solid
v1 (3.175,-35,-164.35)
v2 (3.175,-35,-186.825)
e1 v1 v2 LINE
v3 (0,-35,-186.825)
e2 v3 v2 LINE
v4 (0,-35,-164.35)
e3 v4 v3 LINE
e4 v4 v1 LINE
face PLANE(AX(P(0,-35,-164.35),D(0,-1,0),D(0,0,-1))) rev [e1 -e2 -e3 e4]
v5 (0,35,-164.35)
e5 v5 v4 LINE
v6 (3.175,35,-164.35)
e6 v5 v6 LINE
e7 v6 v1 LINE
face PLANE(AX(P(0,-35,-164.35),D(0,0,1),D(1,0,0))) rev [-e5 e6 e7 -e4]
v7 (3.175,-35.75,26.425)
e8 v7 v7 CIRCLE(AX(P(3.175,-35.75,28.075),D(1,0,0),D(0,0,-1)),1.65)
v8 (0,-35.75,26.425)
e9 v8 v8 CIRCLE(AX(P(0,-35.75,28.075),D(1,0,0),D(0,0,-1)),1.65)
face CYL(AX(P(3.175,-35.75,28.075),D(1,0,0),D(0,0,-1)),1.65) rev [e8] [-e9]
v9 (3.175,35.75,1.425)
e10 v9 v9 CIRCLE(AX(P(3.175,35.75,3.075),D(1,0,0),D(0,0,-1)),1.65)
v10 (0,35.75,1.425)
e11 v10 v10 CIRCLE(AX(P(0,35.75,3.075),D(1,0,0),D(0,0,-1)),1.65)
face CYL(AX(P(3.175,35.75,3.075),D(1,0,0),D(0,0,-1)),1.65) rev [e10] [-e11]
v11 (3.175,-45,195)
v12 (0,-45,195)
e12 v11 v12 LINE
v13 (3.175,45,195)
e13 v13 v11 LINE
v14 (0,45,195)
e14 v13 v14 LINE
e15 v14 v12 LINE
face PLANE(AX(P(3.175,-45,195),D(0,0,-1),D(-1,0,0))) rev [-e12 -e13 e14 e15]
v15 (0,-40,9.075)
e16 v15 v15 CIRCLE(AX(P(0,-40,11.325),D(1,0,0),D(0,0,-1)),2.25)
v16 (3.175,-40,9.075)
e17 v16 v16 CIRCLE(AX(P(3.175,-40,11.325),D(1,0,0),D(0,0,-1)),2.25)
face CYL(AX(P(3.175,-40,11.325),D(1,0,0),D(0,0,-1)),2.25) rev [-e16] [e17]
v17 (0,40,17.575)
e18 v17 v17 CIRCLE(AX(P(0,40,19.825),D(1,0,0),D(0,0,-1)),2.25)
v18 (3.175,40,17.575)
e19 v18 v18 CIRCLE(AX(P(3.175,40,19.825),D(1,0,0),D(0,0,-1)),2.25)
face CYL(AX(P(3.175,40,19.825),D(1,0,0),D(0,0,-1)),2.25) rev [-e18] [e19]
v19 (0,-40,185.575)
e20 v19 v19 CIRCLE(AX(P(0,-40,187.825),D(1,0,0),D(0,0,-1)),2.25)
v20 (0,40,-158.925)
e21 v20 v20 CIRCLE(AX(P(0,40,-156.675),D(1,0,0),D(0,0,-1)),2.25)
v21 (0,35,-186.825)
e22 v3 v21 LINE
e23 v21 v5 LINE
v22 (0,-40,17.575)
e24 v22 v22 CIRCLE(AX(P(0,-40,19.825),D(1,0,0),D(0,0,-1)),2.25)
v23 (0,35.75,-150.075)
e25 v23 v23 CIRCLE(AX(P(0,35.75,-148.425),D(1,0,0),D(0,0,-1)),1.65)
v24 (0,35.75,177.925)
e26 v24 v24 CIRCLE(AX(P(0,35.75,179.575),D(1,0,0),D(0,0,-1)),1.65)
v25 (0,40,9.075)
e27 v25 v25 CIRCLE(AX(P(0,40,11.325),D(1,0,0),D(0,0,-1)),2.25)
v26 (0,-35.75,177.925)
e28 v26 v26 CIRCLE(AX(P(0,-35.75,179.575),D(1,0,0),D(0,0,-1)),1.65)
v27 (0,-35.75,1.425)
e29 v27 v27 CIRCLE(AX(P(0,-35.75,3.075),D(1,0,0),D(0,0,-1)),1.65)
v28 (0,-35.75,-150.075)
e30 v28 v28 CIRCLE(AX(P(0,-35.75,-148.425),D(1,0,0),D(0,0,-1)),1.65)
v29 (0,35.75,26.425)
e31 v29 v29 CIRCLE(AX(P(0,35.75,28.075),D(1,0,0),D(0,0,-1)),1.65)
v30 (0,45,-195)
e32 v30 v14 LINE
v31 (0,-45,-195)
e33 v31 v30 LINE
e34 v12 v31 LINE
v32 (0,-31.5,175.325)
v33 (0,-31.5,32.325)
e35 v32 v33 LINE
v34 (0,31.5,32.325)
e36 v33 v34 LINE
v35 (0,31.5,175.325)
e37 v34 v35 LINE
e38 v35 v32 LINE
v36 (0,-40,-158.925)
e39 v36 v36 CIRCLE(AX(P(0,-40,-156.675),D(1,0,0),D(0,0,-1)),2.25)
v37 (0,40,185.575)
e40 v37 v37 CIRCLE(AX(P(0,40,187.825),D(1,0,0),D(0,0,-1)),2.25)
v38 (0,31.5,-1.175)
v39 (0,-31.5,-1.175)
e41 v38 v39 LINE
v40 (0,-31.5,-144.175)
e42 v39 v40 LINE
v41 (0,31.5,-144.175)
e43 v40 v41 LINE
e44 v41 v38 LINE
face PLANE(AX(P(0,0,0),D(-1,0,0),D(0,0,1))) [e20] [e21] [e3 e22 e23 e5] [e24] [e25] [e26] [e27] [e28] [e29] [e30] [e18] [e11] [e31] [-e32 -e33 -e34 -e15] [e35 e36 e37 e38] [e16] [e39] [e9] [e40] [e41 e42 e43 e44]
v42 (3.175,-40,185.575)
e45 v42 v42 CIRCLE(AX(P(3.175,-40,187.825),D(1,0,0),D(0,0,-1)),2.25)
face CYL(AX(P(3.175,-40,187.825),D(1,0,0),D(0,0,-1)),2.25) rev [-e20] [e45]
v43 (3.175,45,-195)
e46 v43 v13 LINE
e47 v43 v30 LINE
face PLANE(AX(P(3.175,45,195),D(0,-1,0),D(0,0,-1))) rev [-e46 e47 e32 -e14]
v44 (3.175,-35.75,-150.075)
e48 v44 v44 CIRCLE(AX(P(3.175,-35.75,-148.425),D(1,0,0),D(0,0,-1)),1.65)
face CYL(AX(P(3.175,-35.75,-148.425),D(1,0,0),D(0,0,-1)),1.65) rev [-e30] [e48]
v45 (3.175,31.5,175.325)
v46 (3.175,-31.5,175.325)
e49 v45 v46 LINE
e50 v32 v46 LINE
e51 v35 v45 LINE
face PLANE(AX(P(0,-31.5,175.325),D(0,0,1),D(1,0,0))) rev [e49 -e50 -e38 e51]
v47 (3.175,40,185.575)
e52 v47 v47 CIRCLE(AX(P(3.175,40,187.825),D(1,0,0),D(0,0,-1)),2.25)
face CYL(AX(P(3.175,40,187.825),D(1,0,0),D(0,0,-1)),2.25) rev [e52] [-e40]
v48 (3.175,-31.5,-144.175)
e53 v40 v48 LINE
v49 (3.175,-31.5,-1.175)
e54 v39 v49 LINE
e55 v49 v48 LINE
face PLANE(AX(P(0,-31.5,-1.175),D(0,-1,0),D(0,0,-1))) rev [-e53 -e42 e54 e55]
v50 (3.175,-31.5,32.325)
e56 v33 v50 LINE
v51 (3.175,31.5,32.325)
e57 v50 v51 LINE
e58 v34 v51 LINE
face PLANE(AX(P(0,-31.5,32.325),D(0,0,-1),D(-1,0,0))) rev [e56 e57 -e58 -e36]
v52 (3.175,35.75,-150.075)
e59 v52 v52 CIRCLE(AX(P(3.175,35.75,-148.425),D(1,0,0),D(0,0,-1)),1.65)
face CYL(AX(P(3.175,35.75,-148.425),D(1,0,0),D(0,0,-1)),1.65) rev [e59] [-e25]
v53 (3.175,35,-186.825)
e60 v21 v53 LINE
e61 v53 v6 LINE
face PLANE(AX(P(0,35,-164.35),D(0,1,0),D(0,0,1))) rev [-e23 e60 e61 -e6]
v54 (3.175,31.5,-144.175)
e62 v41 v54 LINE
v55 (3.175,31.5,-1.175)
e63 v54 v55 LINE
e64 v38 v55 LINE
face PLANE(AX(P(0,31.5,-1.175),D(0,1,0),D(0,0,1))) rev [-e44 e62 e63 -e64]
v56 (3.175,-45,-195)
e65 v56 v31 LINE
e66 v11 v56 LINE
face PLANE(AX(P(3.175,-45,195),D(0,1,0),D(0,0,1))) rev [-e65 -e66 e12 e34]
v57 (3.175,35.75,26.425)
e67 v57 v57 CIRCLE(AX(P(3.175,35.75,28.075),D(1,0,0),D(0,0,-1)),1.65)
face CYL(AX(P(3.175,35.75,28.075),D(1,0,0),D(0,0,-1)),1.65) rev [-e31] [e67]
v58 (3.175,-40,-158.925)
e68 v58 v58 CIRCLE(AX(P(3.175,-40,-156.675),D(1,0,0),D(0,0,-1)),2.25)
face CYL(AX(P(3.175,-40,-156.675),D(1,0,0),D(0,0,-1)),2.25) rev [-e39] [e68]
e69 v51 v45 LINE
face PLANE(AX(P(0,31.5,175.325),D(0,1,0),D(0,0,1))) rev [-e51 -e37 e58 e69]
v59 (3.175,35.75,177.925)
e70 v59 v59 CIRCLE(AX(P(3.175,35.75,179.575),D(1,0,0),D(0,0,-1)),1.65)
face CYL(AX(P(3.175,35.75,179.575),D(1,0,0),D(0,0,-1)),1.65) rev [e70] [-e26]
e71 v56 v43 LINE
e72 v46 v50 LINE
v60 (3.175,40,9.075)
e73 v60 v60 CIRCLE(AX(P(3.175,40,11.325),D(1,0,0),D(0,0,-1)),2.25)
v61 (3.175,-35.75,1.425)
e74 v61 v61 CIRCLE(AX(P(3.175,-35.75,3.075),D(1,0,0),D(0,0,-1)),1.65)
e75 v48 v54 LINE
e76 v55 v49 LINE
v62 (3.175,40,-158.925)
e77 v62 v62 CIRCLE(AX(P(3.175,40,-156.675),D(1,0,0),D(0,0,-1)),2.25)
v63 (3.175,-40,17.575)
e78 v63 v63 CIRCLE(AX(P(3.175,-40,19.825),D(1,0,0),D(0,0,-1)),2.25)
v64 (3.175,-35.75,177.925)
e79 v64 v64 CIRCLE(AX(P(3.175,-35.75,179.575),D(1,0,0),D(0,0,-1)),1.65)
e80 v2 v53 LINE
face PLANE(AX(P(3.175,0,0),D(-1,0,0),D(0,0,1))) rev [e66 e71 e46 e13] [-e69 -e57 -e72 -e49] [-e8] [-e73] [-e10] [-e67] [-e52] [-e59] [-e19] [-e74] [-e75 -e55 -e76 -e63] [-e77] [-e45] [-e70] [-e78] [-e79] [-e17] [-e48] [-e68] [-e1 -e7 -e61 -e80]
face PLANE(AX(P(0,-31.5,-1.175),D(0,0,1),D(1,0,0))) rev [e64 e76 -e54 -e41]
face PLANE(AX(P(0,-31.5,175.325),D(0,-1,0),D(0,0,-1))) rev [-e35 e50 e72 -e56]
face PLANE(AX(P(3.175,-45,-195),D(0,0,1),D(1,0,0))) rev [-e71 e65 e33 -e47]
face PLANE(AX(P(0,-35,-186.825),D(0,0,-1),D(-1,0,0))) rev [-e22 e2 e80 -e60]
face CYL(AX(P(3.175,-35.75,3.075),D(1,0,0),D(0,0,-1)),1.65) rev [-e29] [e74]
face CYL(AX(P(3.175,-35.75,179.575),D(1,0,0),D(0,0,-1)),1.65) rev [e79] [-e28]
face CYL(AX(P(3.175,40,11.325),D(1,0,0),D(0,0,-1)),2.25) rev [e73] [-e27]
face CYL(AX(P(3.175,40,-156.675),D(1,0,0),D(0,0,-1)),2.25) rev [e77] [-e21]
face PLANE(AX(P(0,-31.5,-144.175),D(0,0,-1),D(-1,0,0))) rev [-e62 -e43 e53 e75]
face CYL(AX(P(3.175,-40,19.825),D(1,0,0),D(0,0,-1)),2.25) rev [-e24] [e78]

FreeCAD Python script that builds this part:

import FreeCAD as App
import Part
import Sketcher

V = App.Vector


def add_polygon(sketch, points):
    """Adds a closed chain of lines whose ends are joined by coincident constraints."""
    first, n = sketch.GeometryCount, len(points)
    for a, b in zip(points, points[1:] + points[:1]):
        sketch.addGeometry(Part.LineSegment(App.Vector(*a, 0), App.Vector(*b, 0)), False)
    for i in range(n):
        sketch.addConstraint(Sketcher.Constraint("Coincident", first + i, 2, first + (i + 1) % n, 1))

doc = App.newDocument("Part")
body = doc.addObject("PartDesign::Body", "Body")

# Sketch on YZ plane
sketch1 = body.newObject("Sketcher::SketchObject", "Sketch")
sketch1.AttachmentSupport = (doc.getObject("YZ_Plane"), [""])
sketch1.MapMode = "FlatFace"
add_polygon(sketch1, [(45, 195), (-45, 195), (-45, -195), (45, -195)])  # lines 0-3
sketch1.addConstraint(Sketcher.Constraint("Horizontal", 0))
sketch1.addConstraint(Sketcher.Constraint("Vertical", 1))
sketch1.addConstraint(Sketcher.Constraint("Horizontal", 2))
sketch1.addConstraint(Sketcher.Constraint("Vertical", 3))
sketch1.addConstraint(Sketcher.Constraint("Symmetric", 0, 2, 2, 2, -1, 1))
sketch1.addConstraint(Sketcher.Constraint("DistanceX", 0, 2, 0, 1, 90.0))
sketch1.addConstraint(Sketcher.Constraint("DistanceY", 1, 2, 1, 1, 390.0))
pad1 = body.newObject("PartDesign::Pad", "Pad")
pad1.Profile = sketch1
pad1.Length = 3.175

# Sketch on YZ plane
sketch2 = body.newObject("Sketcher::SketchObject", "Sketch001")
sketch2.AttachmentSupport = (doc.getObject("YZ_Plane"), [""])
sketch2.MapMode = "FlatFace"
sketch2.AttachmentOffset = App.Placement(V(0, 0, 3.175), App.Rotation())
add_polygon(sketch2, [(31.5, -1.175), (-31.5, -1.175), (-31.5, -144.175), (31.5, -144.175)])  # lines 0-3
add_polygon(sketch2, [(31.5, 175.325), (-31.5, 175.325), (-31.5, 32.325), (31.5, 32.325)])  # lines 4-7
sketch2.addConstraint(Sketcher.Constraint("Horizontal", 0))
sketch2.addConstraint(Sketcher.Constraint("Vertical", 1))
sketch2.addConstraint(Sketcher.Constraint("Horizontal", 2))
sketch2.addConstraint(Sketcher.Constraint("Vertical", 3))
sketch2.addConstraint(Sketcher.Constraint("Horizontal", 4))
sketch2.addConstraint(Sketcher.Constraint("Vertical", 5))
sketch2.addConstraint(Sketcher.Constraint("Horizontal", 6))
sketch2.addConstraint(Sketcher.Constraint("Vertical", 7))
sketch2.addConstraint(Sketcher.Constraint("Vertical", 1, 2, 4, 2))
sketch2.addConstraint(Sketcher.Constraint("Vertical", 3, 2, 6, 2))
sketch2.addConstraint(Sketcher.Constraint("Equal", 3, 5))
sketch2.addConstraint(Sketcher.Constraint("DistanceX", 0, 2, 0, 1, 63.0))
sketch2.addConstraint(Sketcher.Constraint("DistanceY", 1, 2, 1, 1, 143.0))
sketch2.addConstraint(Sketcher.Constraint("DistanceX", 0, 2, -1, 1, 31.5))
sketch2.addConstraint(Sketcher.Constraint("DistanceY", 0, 2, 4, 2, 176.5))
sketch2.addConstraint(Sketcher.Constraint("DistanceY", 0, 2, -1, 1, 1.175))
pocket1 = body.newObject("PartDesign::Pocket", "Pocket")
pocket1.Profile = sketch2
pocket1.Length = 3.175

# Sketch on YZ plane
sketch3 = body.newObject("Sketcher::SketchObject", "Sketch002")
sketch3.AttachmentSupport = (doc.getObject("YZ_Plane"), [""])
sketch3.MapMode = "FlatFace"
sketch3.AttachmentOffset = App.Placement(V(0, 0, 3.175), App.Rotation())
sketch3.addGeometry(Part.Circle(V(0, 103.825, 0), V(0, 0, 1), 1.65), False)
sketch3.addGeometry(Part.Circle(V(35.75, 28.075, 0), V(0, 0, 1), 1.65), False)
sketch3.addGeometry(Part.Circle(V(-35.75, 179.575, 0), V(0, 0, 1), 1.65), False)
sketch3.addGeometry(Part.Circle(V(35.75, 179.575, 0), V(0, 0, 1), 1.65), False)
sketch3.addGeometry(Part.Circle(V(-35.75, 28.075, 0), V(0, 0, 1), 1.65), False)
sketch3.addGeometry(Part.Circle(V(0, -72.675, 0), V(0, 0, 1), 1.65), False)
sketch3.addGeometry(Part.Circle(V(35.75, -148.425, 0), V(0, 0, 1), 1.65), False)
sketch3.addGeometry(Part.Circle(V(-35.75, 3.075, 0), V(0, 0, 1), 1.65), False)
sketch3.addGeometry(Part.Circle(V(35.75, 3.075, 0), V(0, 0, 1), 1.65), False)
sketch3.addGeometry(Part.Circle(V(-35.75, -148.425, 0), V(0, 0, 1), 1.65), False)
sketch3.addConstraint(Sketcher.Constraint("Equal", 0, 1))
sketch3.addConstraint(Sketcher.Constraint("Equal", 1, 2))
sketch3.addConstraint(Sketcher.Constraint("Equal", 2, 3))
sketch3.addConstraint(Sketcher.Constraint("Equal", 3, 4))
sketch3.addConstraint(Sketcher.Constraint("Equal", 4, 5))
sketch3.addConstraint(Sketcher.Constraint("Equal", 5, 6))
sketch3.addConstraint(Sketcher.Constraint("Equal", 6, 7))
sketch3.addConstraint(Sketcher.Constraint("Equal", 7, 8))
sketch3.addConstraint(Sketcher.Constraint("Equal", 8, 9))
sketch3.addConstraint(Sketcher.Constraint("Symmetric", 2, 3, 3, 3, -2))
sketch3.addConstraint(Sketcher.Constraint("Symmetric", 1, 3, 4, 3, -2))
sketch3.addConstraint(Sketcher.Constraint("Symmetric", 7, 3, 8, 3, -2))
sketch3.addConstraint(Sketcher.Constraint("Symmetric", 6, 3, 9, 3, -2))
sketch3.addConstraint(Sketcher.Constraint("PointOnObject", 0, 3, -2))
sketch3.addConstraint(Sketcher.Constraint("PointOnObject", 5, 3, -2))
sketch3.addConstraint(Sketcher.Constraint("Vertical", 1, 3, 3, 3))
sketch3.addConstraint(Sketcher.Constraint("Vertical", 3, 3, 6, 3))
sketch3.addConstraint(Sketcher.Constraint("Vertical", 4, 3, 7, 3))
sketch3.addConstraint(Sketcher.Constraint("Diameter", 0, 3.3))
sketch3.addConstraint(Sketcher.Constraint("DistanceY", 6, 3, 3, 3, 328.0))
sketch3.addConstraint(Sketcher.Constraint("DistanceY", 7, 3, 4, 3, 25.0))
sketch3.addConstraint(Sketcher.Constraint("DistanceX", 2, 3, 1, 3, 71.5))
sketch3.addConstraint(Sketcher.Constraint("DistanceY", 1, 3, 2, 3, 151.5))
sketch3.addConstraint(Sketcher.Constraint("DistanceY", 5, 3, 0, 3, 176.5))
sketch3.addConstraint(Sketcher.Constraint("DistanceY", 1, 3, 0, 3, 75.75))
sketch3.addConstraint(Sketcher.Constraint("DistanceY", -1, 1, 0, 3, 103.825))
doc.recompute()
hole = body.newObject("PartDesign::Hole", "Hole")
hole.Profile = sketch3
hole.ThreadType = "None"
hole.Diameter = 3.3
hole.DepthType = "ThroughAll"

# Sketch on YZ plane
sketch4 = body.newObject("Sketcher::SketchObject", "Sketch003")
sketch4.AttachmentSupport = (doc.getObject("YZ_Plane"), [""])
sketch4.MapMode = "FlatFace"
sketch4.AttachmentOffset = App.Placement(V(0, 0, 3.175), App.Rotation())
add_polygon(sketch4, [(35, -164.35), (-35, -164.35), (-35, -186.825), (35, -186.825)])  # lines 0-3
sketch4.addConstraint(Sketcher.Constraint("Horizontal", 0))
sketch4.addConstraint(Sketcher.Constraint("Vertical", 1))
sketch4.addConstraint(Sketcher.Constraint("Horizontal", 2))
sketch4.addConstraint(Sketcher.Constraint("Vertical", 3))
sketch4.addConstraint(Sketcher.Constraint("DistanceX", 0, 2, 0, 1, 70.0))
sketch4.addConstraint(Sketcher.Constraint("DistanceX", 0, 2, -1, 1, 35.0))
sketch4.addConstraint(Sketcher.Constraint("DistanceY", 1, 2, 1, 1, 22.475))
sketch4.addConstraint(Sketcher.Constraint("DistanceY", 0, 2, -1, 1, 164.35))
pocket2 = body.newObject("PartDesign::Pocket", "Pocket001")
pocket2.Profile = sketch4
pocket2.Length = 3.175

# Sketch on YZ plane
sketch5 = body.newObject("Sketcher::SketchObject", "Sketch004")
sketch5.AttachmentSupport = (doc.getObject("YZ_Plane"), [""])
sketch5.MapMode = "FlatFace"
sketch5.AttachmentOffset = App.Placement(V(0, 0, 3.175), App.Rotation())
sketch5.addGeometry(Part.Circle(V(0, 103.825, 0), V(0, 0, 1), 2.25), False)
sketch5.addGeometry(Part.Circle(V(40, 19.825, 0), V(0, 0, 1), 2.25), False)
sketch5.addGeometry(Part.Circle(V(-40, 187.825, 0), V(0, 0, 1), 2.25), False)
sketch5.addGeometry(Part.Circle(V(40, 187.825, 0), V(0, 0, 1), 2.25), False)
sketch5.addGeometry(Part.Circle(V(-40, 19.825, 0), V(0, 0, 1), 2.25), False)
sketch5.addGeometry(Part.Circle(V(0, -72.675, 0), V(0, 0, 1), 2.25), False)
sketch5.addGeometry(Part.Circle(V(40, -156.675, 0), V(0, 0, 1), 2.25), False)
sketch5.addGeometry(Part.Circle(V(-40, 11.325, 0), V(0, 0, 1), 2.25), False)
sketch5.addGeometry(Part.Circle(V(40, 11.325, 0), V(0, 0, 1), 2.25), False)
sketch5.addGeometry(Part.Circle(V(-40, -156.675, 0), V(0, 0, 1), 2.25), False)
sketch5.addConstraint(Sketcher.Constraint("Equal", 0, 1))
sketch5.addConstraint(Sketcher.Constraint("Equal", 1, 2))
sketch5.addConstraint(Sketcher.Constraint("Equal", 2, 3))
sketch5.addConstraint(Sketcher.Constraint("Equal", 3, 4))
sketch5.addConstraint(Sketcher.Constraint("Equal", 4, 5))
sketch5.addConstraint(Sketcher.Constraint("Equal", 5, 6))
sketch5.addConstraint(Sketcher.Constraint("Equal", 6, 7))
sketch5.addConstraint(Sketcher.Constraint("Equal", 7, 8))
sketch5.addConstraint(Sketcher.Constraint("Equal", 8, 9))
sketch5.addConstraint(Sketcher.Constraint("Symmetric", 2, 3, 3, 3, -2))
sketch5.addConstraint(Sketcher.Constraint("Symmetric", 1, 3, 4, 3, -2))
sketch5.addConstraint(Sketcher.Constraint("Symmetric", 7, 3, 8, 3, -2))
sketch5.addConstraint(Sketcher.Constraint("Symmetric", 6, 3, 9, 3, -2))
sketch5.addConstraint(Sketcher.Constraint("PointOnObject", 0, 3, -2))
sketch5.addConstraint(Sketcher.Constraint("PointOnObject", 5, 3, -2))
sketch5.addConstraint(Sketcher.Constraint("Vertical", 1, 3, 3, 3))
sketch5.addConstraint(Sketcher.Constraint("Vertical", 3, 3, 6, 3))
sketch5.addConstraint(Sketcher.Constraint("Vertical", 4, 3, 7, 3))
sketch5.addConstraint(Sketcher.Constraint("Diameter", 0, 4.5))
sketch5.addConstraint(Sketcher.Constraint("DistanceX", -1, 1, 1, 3, 40.0))
sketch5.addConstraint(Sketcher.Constraint("DistanceY", 1, 3, 0, 3, 84.0))
sketch5.addConstraint(Sketcher.Constraint("DistanceY", 0, 3, 2, 3, 84.0))
sketch5.addConstraint(Sketcher.Constraint("DistanceY", 6, 3, 5, 3, 84.0))
sketch5.addConstraint(Sketcher.Constraint("DistanceY", 5, 3, 7, 3, 84.0))
sketch5.addConstraint(Sketcher.Constraint("DistanceY", 5, 3, 1, 3, 92.5))
sketch5.addConstraint(Sketcher.Constraint("DistanceY", -1, 1, 0, 3, 103.825))
doc.recompute()
hole2 = body.newObject("PartDesign::Hole", "Hole001")
hole2.Profile = sketch5
hole2.ThreadType = "None"
hole2.Diameter = 4.5
hole2.DepthType = "ThroughAll"

doc.recompute()
